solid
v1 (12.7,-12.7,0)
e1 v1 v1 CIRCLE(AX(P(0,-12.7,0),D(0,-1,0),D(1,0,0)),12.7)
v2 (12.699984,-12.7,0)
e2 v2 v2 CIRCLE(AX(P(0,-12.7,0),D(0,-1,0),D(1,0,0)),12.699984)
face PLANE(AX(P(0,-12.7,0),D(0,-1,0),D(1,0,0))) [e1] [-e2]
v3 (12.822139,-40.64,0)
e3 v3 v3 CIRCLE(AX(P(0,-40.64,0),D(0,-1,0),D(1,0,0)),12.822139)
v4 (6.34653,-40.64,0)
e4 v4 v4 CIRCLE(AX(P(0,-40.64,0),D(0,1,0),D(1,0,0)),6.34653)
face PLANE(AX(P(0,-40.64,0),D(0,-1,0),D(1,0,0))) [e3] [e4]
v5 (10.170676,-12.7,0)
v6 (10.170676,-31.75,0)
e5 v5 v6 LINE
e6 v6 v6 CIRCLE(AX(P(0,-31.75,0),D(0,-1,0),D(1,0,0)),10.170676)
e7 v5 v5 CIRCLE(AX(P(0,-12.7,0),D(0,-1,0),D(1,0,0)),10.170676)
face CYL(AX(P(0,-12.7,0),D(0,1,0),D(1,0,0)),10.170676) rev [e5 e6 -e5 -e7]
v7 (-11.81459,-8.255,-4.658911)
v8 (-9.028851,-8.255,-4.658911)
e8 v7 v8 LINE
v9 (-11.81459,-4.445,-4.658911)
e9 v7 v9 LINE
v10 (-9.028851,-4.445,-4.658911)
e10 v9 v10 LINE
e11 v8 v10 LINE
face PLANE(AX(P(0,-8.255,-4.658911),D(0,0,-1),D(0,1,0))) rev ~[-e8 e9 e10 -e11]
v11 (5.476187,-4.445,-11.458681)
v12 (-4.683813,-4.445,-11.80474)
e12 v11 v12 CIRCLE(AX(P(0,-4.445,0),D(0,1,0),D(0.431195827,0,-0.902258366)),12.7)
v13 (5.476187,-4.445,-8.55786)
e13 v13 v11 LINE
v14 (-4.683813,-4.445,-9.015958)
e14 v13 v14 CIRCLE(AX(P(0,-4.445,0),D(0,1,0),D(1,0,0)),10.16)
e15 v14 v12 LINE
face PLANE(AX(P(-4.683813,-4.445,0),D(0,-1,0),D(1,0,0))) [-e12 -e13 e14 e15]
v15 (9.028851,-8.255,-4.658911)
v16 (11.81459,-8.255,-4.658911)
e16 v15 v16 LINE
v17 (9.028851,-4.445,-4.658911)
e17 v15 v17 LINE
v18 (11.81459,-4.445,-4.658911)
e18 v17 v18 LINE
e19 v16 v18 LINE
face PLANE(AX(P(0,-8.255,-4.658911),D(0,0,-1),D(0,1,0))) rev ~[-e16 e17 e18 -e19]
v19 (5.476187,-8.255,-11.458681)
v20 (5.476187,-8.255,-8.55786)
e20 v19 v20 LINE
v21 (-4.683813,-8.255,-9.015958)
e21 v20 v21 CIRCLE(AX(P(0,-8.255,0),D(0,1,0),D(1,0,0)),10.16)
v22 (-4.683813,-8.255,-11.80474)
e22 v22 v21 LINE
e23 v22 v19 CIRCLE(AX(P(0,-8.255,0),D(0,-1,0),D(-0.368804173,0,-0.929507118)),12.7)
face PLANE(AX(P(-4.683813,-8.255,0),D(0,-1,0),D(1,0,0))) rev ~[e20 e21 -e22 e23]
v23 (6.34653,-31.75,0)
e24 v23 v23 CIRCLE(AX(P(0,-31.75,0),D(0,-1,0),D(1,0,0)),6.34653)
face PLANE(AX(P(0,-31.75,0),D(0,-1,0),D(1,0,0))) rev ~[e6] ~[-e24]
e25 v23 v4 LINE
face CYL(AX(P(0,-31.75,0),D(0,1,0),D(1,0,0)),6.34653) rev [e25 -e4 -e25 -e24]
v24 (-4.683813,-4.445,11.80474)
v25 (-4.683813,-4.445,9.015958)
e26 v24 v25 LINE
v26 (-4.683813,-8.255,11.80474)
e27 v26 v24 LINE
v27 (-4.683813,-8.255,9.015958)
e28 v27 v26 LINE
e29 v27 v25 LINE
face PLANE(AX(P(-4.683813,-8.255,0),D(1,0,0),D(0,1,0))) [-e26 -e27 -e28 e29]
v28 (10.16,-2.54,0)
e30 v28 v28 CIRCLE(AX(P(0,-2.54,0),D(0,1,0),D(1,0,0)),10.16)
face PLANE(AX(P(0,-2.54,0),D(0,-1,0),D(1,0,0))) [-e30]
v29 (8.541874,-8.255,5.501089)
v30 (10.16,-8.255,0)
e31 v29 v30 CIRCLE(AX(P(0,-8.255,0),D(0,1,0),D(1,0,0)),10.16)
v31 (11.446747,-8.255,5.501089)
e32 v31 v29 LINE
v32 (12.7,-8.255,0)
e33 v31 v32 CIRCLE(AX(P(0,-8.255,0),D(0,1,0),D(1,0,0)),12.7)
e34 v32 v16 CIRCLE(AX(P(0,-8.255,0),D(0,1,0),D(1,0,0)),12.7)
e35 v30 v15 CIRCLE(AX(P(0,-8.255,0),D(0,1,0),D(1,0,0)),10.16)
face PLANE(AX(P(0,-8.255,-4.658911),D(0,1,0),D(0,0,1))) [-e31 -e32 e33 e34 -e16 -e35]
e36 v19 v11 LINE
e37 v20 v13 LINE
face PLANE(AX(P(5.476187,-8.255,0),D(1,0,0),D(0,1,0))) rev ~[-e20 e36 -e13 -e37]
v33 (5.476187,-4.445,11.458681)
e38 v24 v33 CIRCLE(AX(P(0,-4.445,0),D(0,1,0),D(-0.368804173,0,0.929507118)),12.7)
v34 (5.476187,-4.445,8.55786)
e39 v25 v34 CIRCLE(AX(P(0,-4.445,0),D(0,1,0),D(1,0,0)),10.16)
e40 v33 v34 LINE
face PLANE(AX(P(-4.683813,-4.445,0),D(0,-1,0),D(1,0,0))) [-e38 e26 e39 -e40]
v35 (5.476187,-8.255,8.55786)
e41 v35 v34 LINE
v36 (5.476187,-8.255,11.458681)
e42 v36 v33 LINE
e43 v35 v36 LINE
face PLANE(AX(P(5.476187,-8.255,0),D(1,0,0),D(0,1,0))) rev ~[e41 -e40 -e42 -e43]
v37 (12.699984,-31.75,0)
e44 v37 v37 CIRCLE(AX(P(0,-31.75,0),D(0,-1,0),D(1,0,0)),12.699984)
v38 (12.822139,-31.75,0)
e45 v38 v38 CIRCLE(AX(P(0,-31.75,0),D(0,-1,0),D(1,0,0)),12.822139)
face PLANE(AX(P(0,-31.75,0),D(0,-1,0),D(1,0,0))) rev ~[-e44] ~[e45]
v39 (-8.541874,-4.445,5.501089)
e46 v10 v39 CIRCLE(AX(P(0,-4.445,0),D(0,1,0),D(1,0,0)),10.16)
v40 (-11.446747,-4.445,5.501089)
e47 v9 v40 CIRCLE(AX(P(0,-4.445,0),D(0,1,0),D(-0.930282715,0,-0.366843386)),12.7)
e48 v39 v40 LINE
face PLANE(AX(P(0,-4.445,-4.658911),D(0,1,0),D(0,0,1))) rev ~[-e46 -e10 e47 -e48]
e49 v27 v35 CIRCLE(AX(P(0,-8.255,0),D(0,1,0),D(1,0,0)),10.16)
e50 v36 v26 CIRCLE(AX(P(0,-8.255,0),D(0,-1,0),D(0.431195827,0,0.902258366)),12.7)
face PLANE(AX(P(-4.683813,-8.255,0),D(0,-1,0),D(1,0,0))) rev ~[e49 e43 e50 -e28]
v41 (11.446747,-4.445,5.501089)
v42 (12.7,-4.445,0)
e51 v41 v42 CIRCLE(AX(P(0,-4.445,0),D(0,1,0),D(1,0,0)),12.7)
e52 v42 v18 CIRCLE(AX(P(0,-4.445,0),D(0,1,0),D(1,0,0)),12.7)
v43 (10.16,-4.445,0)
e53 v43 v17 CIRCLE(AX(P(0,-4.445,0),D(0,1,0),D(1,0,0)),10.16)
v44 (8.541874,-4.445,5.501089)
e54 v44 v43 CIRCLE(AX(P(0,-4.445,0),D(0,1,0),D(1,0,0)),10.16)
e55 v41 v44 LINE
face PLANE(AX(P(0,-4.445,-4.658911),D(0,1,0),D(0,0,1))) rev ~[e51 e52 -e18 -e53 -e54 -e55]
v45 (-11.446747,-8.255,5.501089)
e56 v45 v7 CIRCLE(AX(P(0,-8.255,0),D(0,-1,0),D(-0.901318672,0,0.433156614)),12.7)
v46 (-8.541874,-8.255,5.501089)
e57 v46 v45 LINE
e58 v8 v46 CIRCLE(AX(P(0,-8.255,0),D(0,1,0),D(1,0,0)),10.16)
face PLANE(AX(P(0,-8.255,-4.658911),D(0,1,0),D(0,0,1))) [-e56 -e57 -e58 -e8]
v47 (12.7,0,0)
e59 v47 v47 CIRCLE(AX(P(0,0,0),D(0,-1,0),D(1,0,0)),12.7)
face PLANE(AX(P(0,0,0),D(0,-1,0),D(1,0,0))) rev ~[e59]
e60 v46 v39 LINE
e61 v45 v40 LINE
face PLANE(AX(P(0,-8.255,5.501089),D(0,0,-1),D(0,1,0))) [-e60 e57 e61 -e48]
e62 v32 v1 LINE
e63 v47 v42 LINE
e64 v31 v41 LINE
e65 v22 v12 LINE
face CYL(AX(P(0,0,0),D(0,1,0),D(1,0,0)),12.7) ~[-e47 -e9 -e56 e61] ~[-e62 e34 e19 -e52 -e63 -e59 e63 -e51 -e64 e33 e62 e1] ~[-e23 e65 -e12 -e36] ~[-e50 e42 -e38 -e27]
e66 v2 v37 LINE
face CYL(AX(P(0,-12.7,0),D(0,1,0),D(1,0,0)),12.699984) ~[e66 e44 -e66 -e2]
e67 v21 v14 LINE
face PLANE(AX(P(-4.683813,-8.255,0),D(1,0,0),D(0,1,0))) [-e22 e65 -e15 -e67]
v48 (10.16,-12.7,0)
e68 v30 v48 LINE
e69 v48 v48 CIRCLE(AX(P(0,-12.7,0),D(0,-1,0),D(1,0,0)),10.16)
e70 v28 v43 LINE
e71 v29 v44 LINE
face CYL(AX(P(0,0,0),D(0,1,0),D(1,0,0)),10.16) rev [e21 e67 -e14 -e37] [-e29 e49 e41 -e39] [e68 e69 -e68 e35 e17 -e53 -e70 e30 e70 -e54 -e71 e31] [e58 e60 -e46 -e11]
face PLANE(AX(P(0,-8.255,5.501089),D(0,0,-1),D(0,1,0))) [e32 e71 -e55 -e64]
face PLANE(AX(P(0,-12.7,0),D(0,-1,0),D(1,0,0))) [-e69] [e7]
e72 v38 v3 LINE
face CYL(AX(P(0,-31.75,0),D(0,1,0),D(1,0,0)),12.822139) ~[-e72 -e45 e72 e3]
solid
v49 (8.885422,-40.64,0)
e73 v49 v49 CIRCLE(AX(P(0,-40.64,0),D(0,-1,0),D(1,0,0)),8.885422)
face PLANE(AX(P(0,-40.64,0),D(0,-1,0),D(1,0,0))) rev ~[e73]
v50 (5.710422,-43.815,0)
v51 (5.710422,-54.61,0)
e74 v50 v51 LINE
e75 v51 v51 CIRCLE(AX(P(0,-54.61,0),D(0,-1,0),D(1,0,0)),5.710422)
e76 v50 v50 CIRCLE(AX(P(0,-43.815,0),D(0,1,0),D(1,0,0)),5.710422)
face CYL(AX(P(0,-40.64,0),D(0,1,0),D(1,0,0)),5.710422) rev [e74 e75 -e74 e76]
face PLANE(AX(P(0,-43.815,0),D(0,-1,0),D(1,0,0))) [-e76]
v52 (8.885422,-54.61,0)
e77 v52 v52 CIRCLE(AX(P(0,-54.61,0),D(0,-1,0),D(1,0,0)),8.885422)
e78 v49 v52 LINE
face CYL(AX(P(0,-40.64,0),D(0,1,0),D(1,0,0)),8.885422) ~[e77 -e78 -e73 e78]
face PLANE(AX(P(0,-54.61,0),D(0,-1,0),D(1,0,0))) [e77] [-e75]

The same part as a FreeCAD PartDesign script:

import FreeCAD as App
import Part
import Sketcher
from FreeCAD import Vector
Q = App.Units.Quantity


def faces_at(feature, points):
    """Names of the faces that lie closest to the given points."""
    faces = feature.Shape.Faces
    near = lambda p: min(range(len(faces)), key=lambda i: faces[i].distToShape(Part.Vertex(*p))[0])
    return sorted({f"Face{near(p) + 1}" for p in points})

doc = App.newDocument("Part")
body = doc.addObject("PartDesign::Body", "Body")

# Sketch on XZ plane
sketch1 = body.newObject("Sketcher::SketchObject", "Sketch")
sketch1.AttachmentSupport = (doc.getObject("XZ_Plane"), [""])
sketch1.MapMode = "FlatFace"
sketch1.addGeometry(Part.Circle(Vector(0, 0, 0), Vector(0, 0, 1), 13), False)
sketch1.addConstraint([
    Sketcher.Constraint("Coincident", 0, 3, -1, 1),
    Sketcher.Constraint("Diameter", 0, Q("1 in")),
])
pad1 = body.newObject("PartDesign::Pad", "Pad")
pad1.Profile = sketch1
pad1.Length = Q("0.5 in")
doc.recompute()

thickness = body.newObject("PartDesign::Thickness", "Thickness")
thickness.Base = (pad1, faces_at(pad1, [(0, -12.7, 0)]))
thickness.Value = Q("0.1 in")
thickness.Reversed = True
thickness.Join = "Arc"

# Sketch on YZ plane
sketch2 = body.newObject("Sketcher::SketchObject", "Sketch001")
sketch2.AttachmentSupport = (doc.getObject("YZ_Plane"), [""])
sketch2.MapMode = "FlatFace"
sketch2.addGeometry([
    Part.LineSegment(Vector(-8.3, 5.5, 0), Vector(-8.3, -4.7, 0)),
    Part.LineSegment(Vector(-8.3, -4.7, 0), Vector(-4.4, -4.7, 0)),
    Part.LineSegment(Vector(-4.4, -4.7, 0), Vector(-4.4, 5.5, 0)),
    Part.LineSegment(Vector(-4.4, 5.5, 0), Vector(-8.3, 5.5, 0)),
], False)
sketch2.addConstraint([
    Sketcher.Constraint("Coincident", 0, 2, 1, 1),
    Sketcher.Constraint("Coincident", 1, 2, 2, 1),
    Sketcher.Constraint("Coincident", 2, 2, 3, 1),
    Sketcher.Constraint("Coincident", 3, 2, 0, 1),
    Sketcher.Constraint("Vertical", 0),
    Sketcher.Constraint("Horizontal", 1),
    Sketcher.Constraint("Vertical", 2),
    Sketcher.Constraint("Horizontal", 3),
    Sketcher.Constraint("DistanceY", 0, 2, 0, 1, Q("0.4 in")),
    Sketcher.Constraint("DistanceX", 1, 1, 1, 2, Q("0.15 in")),
    Sketcher.Constraint("DistanceX", 0, 2, -1, 1, Q("0.325 in")),
    Sketcher.Constraint("DistanceY", 0, 2, -1, 1, 4.658911),
])
pocket1 = body.newObject("PartDesign::Pocket", "Pocket")
pocket1.Profile = sketch2
pocket1.Length = Q("1 in")
pocket1.Midplane = True

# Sketch on XY plane
sketch3 = body.newObject("Sketcher::SketchObject", "Sketch002")
sketch3.AttachmentSupport = (doc.getObject("XY_Plane"), [""])
sketch3.MapMode = "FlatFace"
sketch3.addGeometry([
    Part.LineSegment(Vector(-4.7, -4.4, 0), Vector(-4.7, -8.3, 0)),
    Part.LineSegment(Vector(-4.7, -8.3, 0), Vector(5.5, -8.3, 0)),
    Part.LineSegment(Vector(5.5, -8.3, 0), Vector(5.5, -4.4, 0)),
    Part.LineSegment(Vector(5.5, -4.4, 0), Vector(-4.7, -4.4, 0)),
], False)
sketch3.addConstraint([
    Sketcher.Constraint("Coincident", 0, 2, 1, 1),
    Sketcher.Constraint("Coincident", 1, 2, 2, 1),
    Sketcher.Constraint("Coincident", 2, 2, 3, 1),
    Sketcher.Constraint("Coincident", 3, 2, 0, 1),
    Sketcher.Constraint("Vertical", 0),
    Sketcher.Constraint("Horizontal", 1),
    Sketcher.Constraint("Vertical", 2),
    Sketcher.Constraint("Horizontal", 3),
    Sketcher.Constraint("DistanceX", 1, 1, 1, 2, Q("0.4 in")),
    Sketcher.Constraint("DistanceY", 0, 2, 0, 1, Q("0.15 in")),
    Sketcher.Constraint("DistanceY", 0, 2, -1, 1, Q("0.325 in")),
    Sketcher.Constraint("DistanceX", 0, 2, -1, 1, 4.683813),
])
pocket2 = body.newObject("PartDesign::Pocket", "Pocket001")
pocket2.Profile = sketch3
pocket2.Length = Q("1 in")
pocket2.Midplane = True

# Sketch on XZ plane
sketch4 = body.newObject("Sketcher::SketchObject", "Sketch003")
sketch4.AttachmentSupport = (doc.getObject("XZ_Plane"), [""])
sketch4.MapMode = "FlatFace"
sketch4.AttachmentOffset = App.Placement(Vector(0, 0, 0.5 * 25.4), App.Rotation())
sketch4.addGeometry([
    Part.Circle(Vector(0, 0, 0), Vector(0, 0, 1), 13),
    Part.Circle(Vector(0, 0, 0), Vector(0, 0, 1), 10),
], False)
sketch4.addConstraint([
    Sketcher.Constraint("Coincident", 0, 3, -1, 1),
    Sketcher.Constraint("Coincident", 1, 3, -1, 1),
    Sketcher.Constraint("Diameter", 0, 25.399968),
    Sketcher.Constraint("Diameter", 1, 20.341352),
])
pad2 = body.newObject("PartDesign::Pad", "Pad001")
pad2.Profile = sketch4
pad2.Length = Q("0.75 in")

# Sketch on XZ plane
sketch5 = body.newObject("Sketcher::SketchObject", "Sketch004")
sketch5.AttachmentSupport = (doc.getObject("XZ_Plane"), [""])
sketch5.MapMode = "FlatFace"
sketch5.AttachmentOffset = App.Placement(Vector(0, 0, 1.25 * 25.4), App.Rotation())
sketch5.addGeometry(Part.Circle(Vector(0, 0, 0), Vector(0, 0, 1), 13), False)
sketch5.addConstraint([
    Sketcher.Constraint("Coincident", 0, 3, -1, 1),
    Sketcher.Constraint("Diameter", 0, 25.644278),
])
pad3 = body.newObject("PartDesign::Pad", "Pad002")
pad3.Profile = sketch5
pad3.Length = Q("0.35 in")

# Sketch on XZ plane
sketch6 = body.newObject("Sketcher::SketchObject", "Sketch005")
sketch6.AttachmentSupport = (doc.getObject("XZ_Plane"), [""])
sketch6.MapMode = "FlatFace"
sketch6.AttachmentOffset = App.Placement(Vector(0, 0, 1.25 * 25.4), App.Rotation())
sketch6.addGeometry(Part.Circle(Vector(0, 0, 0), Vector(0, 0, 1), 6), False)
sketch6.addConstraint([
    Sketcher.Constraint("Coincident", 0, 3, -1, 1),
    Sketcher.Constraint("Diameter", 0, 12.69306),
])
pocket3 = body.newObject("PartDesign::Pocket", "Pocket002")
pocket3.Profile = sketch6
pocket3.Length = Q("0.41 in")
pocket3.Reversed = True
body2 = doc.addObject("PartDesign::Body", "Body001")

# Sketch on XZ plane
sketch7 = body2.newObject("Sketcher::SketchObject", "Sketch006")
sketch7.AttachmentSupport = (doc.getObject("XZ_Plane001"), [""])
sketch7.MapMode = "FlatFace"
sketch7.AttachmentOffset = App.Placement(Vector(0, 0, 1.6 * 25.4), App.Rotation())
sketch7.addGeometry(Part.Circle(Vector(0, 0, 0), Vector(0, 0, 1), 9), False)
sketch7.addConstraint([
    Sketcher.Constraint("Coincident", 0, 3, -1, 1),
    Sketcher.Constraint("Diameter", 0, 17.770844),
])
pad4 = body2.newObject("PartDesign::Pad", "Pad003")
pad4.Profile = sketch7
pad4.Length = Q("0.55 in")
doc.recompute()

thickness2 = body2.newObject("PartDesign::Thickness", "Thickness001")
thickness2.Base = (pad4, faces_at(pad4, [(0, -54.61, 0)]))
thickness2.Value = Q("0.125 in")
thickness2.Reversed = True
thickness2.Join = "Arc"

doc.recompute()
